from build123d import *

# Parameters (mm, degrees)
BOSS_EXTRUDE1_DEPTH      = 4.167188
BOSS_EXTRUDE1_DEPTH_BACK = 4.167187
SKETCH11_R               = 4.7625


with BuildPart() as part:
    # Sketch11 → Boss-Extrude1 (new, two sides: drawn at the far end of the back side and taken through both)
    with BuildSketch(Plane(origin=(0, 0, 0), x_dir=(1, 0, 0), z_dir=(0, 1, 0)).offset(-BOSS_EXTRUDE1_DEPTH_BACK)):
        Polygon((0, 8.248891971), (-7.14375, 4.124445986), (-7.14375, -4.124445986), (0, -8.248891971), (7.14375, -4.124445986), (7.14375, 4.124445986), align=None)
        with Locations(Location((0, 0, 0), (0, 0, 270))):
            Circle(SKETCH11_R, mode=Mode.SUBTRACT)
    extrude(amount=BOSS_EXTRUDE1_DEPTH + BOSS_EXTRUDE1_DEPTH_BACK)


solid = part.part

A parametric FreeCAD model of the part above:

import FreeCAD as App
import Part
import Sketcher
from FreeCAD import Vector
Q = App.Units.Quantity


def add_polygon(sketch, points):
    """Adds a closed chain of lines whose ends are joined by coincident constraints."""
    first, n = sketch.GeometryCount, len(points)
    for a, b in zip(points, points[1:] + points[:1]):
        sketch.addGeometry(Part.LineSegment(App.Vector(*a, 0), App.Vector(*b, 0)), False)
    for i in range(n):
        sketch.addConstraint(Sketcher.Constraint("Coincident", first + i, 2, first + (i + 1) % n, 1))

doc = App.newDocument("Part")
body = doc.addObject("PartDesign::Body", "Body")

sketch1 = body.newObject("Sketcher::SketchObject", "Sketch")
sketch1.AttachmentSupport = (doc.getObject("XZ_Plane"), [""])
sketch1.MapMode = "FlatFace"
add_polygon(sketch1, [(0, -8.2), (-7.1, -4.1), (-7.1, 4.1), (0, 8.2), (7.1, 4.1), (7.1, -4.1)])
sketch1.addGeometry(Part.Circle(Vector(0, 0, 0), Vector(0, 0, 1), 4.8), False)
sketch1.addConstraint([
    Sketcher.Constraint("Vertical", 1),
    Sketcher.Constraint("Vertical", 4),
    Sketcher.Constraint("Coincident", 6, 3, -1, 1),
    Sketcher.Constraint("Symmetric", 0, 2, 3, 2, -1, 1),
    Sketcher.Constraint("Symmetric", 2, 2, 5, 2, -1, 1),
    Sketcher.Constraint("PointOnObject", 2, 2, -2),
    Sketcher.Constraint("Parallel", 2, 5),
    Sketcher.Constraint("Horizontal", 1, 2, 3, 2),
    Sketcher.Constraint("Diameter", 6, Q("0.375 in")),
    Sketcher.Constraint("Angle", 0, Q("150 deg")),
    Sketcher.Constraint("DistanceX", 0, 2, -1, 1, Q("0.28125 in")),
    Sketcher.Constraint("DistanceY", 1, 1, 1, 2, Q("8.248892 mm")),
])
pad1 = body.newObject("PartDesign::Pad", "Pad")
pad1.Profile = sketch1
pad1.Type = "TwoLengths"
pad1.Length = 4.167188
pad1.Length2 = 4.167187
pad1.Reversed = True

doc.recompute()
